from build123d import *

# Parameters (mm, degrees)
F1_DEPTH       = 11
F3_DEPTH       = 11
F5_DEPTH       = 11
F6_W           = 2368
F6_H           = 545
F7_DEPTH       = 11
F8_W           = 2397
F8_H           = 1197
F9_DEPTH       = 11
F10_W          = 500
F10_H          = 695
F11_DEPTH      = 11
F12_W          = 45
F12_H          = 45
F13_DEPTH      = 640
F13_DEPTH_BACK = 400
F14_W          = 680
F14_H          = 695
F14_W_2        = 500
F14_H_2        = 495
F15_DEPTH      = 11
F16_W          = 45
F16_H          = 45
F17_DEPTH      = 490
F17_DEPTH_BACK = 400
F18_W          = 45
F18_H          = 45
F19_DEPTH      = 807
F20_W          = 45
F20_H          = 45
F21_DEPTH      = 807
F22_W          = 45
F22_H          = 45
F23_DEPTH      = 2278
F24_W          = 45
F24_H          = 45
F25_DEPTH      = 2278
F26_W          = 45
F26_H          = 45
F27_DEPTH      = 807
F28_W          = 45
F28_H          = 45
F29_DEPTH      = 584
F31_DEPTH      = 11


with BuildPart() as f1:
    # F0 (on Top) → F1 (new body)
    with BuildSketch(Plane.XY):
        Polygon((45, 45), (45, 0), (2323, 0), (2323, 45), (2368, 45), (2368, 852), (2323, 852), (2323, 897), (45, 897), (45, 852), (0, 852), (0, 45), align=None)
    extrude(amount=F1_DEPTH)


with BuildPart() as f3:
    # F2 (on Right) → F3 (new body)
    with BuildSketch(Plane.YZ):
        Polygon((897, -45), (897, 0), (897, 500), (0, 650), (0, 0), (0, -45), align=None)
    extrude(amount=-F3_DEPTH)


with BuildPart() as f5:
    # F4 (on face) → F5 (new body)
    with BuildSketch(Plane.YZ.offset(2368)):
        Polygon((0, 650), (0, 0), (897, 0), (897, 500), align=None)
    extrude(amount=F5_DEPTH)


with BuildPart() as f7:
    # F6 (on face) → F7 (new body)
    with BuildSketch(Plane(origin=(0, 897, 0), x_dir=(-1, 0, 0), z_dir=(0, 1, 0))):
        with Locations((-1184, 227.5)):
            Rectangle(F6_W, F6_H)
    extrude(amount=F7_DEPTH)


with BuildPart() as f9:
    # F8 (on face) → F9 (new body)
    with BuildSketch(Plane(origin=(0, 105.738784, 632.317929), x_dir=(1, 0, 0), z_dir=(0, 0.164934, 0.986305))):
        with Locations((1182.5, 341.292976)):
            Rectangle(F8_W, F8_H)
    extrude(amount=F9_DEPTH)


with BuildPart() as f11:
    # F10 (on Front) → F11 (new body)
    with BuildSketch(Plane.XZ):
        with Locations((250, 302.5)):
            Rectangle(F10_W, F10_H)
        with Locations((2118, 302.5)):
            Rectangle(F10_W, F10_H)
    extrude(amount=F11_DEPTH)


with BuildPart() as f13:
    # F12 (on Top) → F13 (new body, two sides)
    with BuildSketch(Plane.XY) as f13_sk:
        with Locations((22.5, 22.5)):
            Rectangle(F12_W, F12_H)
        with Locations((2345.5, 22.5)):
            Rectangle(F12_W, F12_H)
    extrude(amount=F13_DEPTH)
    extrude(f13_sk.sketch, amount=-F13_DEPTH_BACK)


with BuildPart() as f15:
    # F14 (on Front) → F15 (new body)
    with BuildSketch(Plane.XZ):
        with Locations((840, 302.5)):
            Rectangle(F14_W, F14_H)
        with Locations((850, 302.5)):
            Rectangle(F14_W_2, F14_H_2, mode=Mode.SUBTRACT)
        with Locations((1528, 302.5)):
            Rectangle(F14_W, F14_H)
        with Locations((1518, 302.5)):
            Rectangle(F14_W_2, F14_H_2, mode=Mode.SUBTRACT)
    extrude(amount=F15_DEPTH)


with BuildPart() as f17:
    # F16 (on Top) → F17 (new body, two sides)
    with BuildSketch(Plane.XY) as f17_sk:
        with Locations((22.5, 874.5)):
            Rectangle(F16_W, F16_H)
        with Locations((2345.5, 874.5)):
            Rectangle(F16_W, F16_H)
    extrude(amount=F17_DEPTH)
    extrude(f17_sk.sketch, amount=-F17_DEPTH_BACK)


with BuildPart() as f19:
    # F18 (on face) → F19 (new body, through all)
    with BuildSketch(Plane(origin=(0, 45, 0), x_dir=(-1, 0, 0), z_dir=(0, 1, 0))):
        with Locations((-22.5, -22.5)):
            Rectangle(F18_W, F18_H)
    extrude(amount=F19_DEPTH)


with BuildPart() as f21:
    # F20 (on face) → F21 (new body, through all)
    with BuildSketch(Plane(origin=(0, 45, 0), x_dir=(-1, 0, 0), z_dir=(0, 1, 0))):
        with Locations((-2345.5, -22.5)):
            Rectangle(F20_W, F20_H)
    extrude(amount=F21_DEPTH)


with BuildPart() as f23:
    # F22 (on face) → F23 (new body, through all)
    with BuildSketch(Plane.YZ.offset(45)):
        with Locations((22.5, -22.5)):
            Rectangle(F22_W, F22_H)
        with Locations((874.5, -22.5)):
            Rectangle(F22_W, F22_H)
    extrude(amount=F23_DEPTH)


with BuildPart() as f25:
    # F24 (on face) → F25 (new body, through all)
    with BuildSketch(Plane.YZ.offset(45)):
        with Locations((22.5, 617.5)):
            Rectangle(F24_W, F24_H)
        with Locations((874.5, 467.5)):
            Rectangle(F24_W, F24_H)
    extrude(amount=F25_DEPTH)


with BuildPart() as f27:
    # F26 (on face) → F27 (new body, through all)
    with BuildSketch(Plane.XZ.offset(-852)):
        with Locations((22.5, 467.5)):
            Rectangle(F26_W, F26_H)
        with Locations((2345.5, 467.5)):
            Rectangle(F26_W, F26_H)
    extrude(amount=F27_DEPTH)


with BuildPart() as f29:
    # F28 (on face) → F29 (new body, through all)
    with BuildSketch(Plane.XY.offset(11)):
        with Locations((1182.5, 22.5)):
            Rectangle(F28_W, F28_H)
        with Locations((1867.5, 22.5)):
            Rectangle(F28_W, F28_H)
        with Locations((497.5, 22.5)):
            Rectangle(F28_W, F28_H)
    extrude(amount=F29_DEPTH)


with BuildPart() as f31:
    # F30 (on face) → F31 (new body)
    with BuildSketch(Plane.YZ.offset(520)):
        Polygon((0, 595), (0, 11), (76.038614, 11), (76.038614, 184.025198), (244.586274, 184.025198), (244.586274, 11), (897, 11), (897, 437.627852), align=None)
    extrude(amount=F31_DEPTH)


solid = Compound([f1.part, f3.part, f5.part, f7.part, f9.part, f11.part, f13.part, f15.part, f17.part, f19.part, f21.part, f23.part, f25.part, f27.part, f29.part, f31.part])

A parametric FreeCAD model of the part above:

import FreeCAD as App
import Part
import Sketcher

V = App.Vector


def add_polygon(sketch, points):
    """Adds a closed chain of lines whose ends are joined by coincident constraints."""
    first, n = sketch.GeometryCount, len(points)
    for a, b in zip(points, points[1:] + points[:1]):
        sketch.addGeometry(Part.LineSegment(App.Vector(*a, 0), App.Vector(*b, 0)), False)
    for i in range(n):
        sketch.addConstraint(Sketcher.Constraint("Coincident", first + i, 2, first + (i + 1) % n, 1))

doc = App.newDocument("Part")
body = doc.addObject("PartDesign::Body", "Body")

# Sketch on XY plane
sketch1 = body.newObject("Sketcher::SketchObject", "Sketch")
sketch1.AttachmentSupport = (doc.getObject("XY_Plane"), [""])
sketch1.MapMode = "FlatFace"
add_polygon(sketch1, [(45, 45), (45, 0), (2323, 0), (2323, 45), (2368, 45), (2368, 852), (2323, 852), (2323, 897), (45, 897), (45, 852), (0, 852), (0, 45)])  # lines 0-11
sketch1.addConstraint(Sketcher.Constraint("Vertical", 0))
sketch1.addConstraint(Sketcher.Constraint("Horizontal", 1))
sketch1.addConstraint(Sketcher.Constraint("Vertical", 2))
sketch1.addConstraint(Sketcher.Constraint("Horizontal", 3))
sketch1.addConstraint(Sketcher.Constraint("Vertical", 4))
sketch1.addConstraint(Sketcher.Constraint("Horizontal", 5))
sketch1.addConstraint(Sketcher.Constraint("Vertical", 6))
sketch1.addConstraint(Sketcher.Constraint("Horizontal", 7))
sketch1.addConstraint(Sketcher.Constraint("Vertical", 8))
sketch1.addConstraint(Sketcher.Constraint("Horizontal", 9))
sketch1.addConstraint(Sketcher.Constraint("Vertical", 10))
sketch1.addConstraint(Sketcher.Constraint("Horizontal", 11))
sketch1.addConstraint(Sketcher.Constraint("PointOnObject", 0, 2, -1))
sketch1.addConstraint(Sketcher.Constraint("PointOnObject", 9, 2, -2))
sketch1.addConstraint(Sketcher.Constraint("Horizontal", 5, 2, 8, 2))
sketch1.addConstraint(Sketcher.Constraint("Horizontal", 3, 2, 10, 2))
sketch1.addConstraint(Sketcher.Constraint("Vertical", 2, 2, 5, 2))
sketch1.addConstraint(Sketcher.Constraint("Vertical", 0, 2, 7, 2))
sketch1.addConstraint(Sketcher.Constraint("Equal", 5, 9))
sketch1.addConstraint(Sketcher.Constraint("Equal", 11, 0))
sketch1.addConstraint(Sketcher.Constraint("Equal", 2, 6))
sketch1.addConstraint(Sketcher.Constraint("DistanceX", 1, 1, 1, 2, 2278.0))
sketch1.addConstraint(Sketcher.Constraint("DistanceX", 3, 1, 3, 2, 45.0))
sketch1.addConstraint(Sketcher.Constraint("DistanceY", 4, 1, 4, 2, 807.0))
pad1 = body.newObject("PartDesign::Pad", "Pad")
pad1.Profile = sketch1
pad1.Length = 11
body2 = doc.addObject("PartDesign::Body", "Body001")

# Sketch on YZ plane
sketch2 = body2.newObject("Sketcher::SketchObject", "Sketch001")
sketch2.AttachmentSupport = (doc.getObject("YZ_Plane001"), [""])
sketch2.MapMode = "FlatFace"
add_polygon(sketch2, [(897, -45), (897, 500), (0, 650), (0, -45)])  # lines 0-3
sketch2.addConstraint(Sketcher.Constraint("Vertical", 0))
sketch2.addConstraint(Sketcher.Constraint("Vertical", 2))
sketch2.addConstraint(Sketcher.Constraint("Horizontal", 3))
sketch2.addConstraint(Sketcher.Constraint("PointOnObject", 1, 2, -2))
sketch2.addConstraint(Sketcher.Constraint("DistanceX", 3, 1, 3, 2, 897.0))
sketch2.addConstraint(Sketcher.Constraint("DistanceY", 0, 1, 0, 2, 545.0))
sketch2.addConstraint(Sketcher.Constraint("DistanceY", 2, 2, 2, 1, 695.0))
sketch2.addConstraint(Sketcher.Constraint("DistanceY", -1, 1, 0, 2, 500.0))
pad2 = body2.newObject("PartDesign::Pad", "Pad001")
pad2.Profile = sketch2
pad2.Length = 11
pad2.Reversed = True
body3 = doc.addObject("PartDesign::Body", "Body002")

# Sketch on YZ plane
sketch3 = body3.newObject("Sketcher::SketchObject", "Sketch002")
sketch3.AttachmentSupport = (doc.getObject("YZ_Plane002"), [""])
sketch3.MapMode = "FlatFace"
sketch3.AttachmentOffset = App.Placement(V(0, 0, 2368), App.Rotation())
add_polygon(sketch3, [(0, 650), (0, 0), (897, 0), (897, 500)])  # lines 0-3
sketch3.addConstraint(Sketcher.Constraint("Vertical", 0))
sketch3.addConstraint(Sketcher.Constraint("Horizontal", 1))
sketch3.addConstraint(Sketcher.Constraint("Vertical", 2))
sketch3.addConstraint(Sketcher.Constraint("Coincident", 0, 2, -1, 1))
sketch3.addConstraint(Sketcher.Constraint("DistanceX", 1, 1, 1, 2, 897.0))
sketch3.addConstraint(Sketcher.Constraint("DistanceY", 0, 2, 0, 1, 650.0))
sketch3.addConstraint(Sketcher.Constraint("DistanceY", 2, 1, 2, 2, 500.0))
pad3 = body3.newObject("PartDesign::Pad", "Pad002")
pad3.Profile = sketch3
pad3.Length = 11
body4 = doc.addObject("PartDesign::Body", "Body003")

# Sketch on XZ plane
sketch4 = body4.newObject("Sketcher::SketchObject", "Sketch003")
sketch4.AttachmentSupport = (doc.getObject("XZ_Plane003"), [""])
sketch4.MapMode = "FlatFace"
sketch4.AttachmentOffset = App.Placement(V(0, 0, -897), App.Rotation())
add_polygon(sketch4, [(2368, 500), (2368, -45), (0, -45), (0, 500)])  # lines 0-3
sketch4.addConstraint(Sketcher.Constraint("Vertical", 0))
sketch4.addConstraint(Sketcher.Constraint("Horizontal", 1))
sketch4.addConstraint(Sketcher.Constraint("Vertical", 2))
sketch4.addConstraint(Sketcher.Constraint("Horizontal", 3))
sketch4.addConstraint(Sketcher.Constraint("PointOnObject", 1, 2, -2))
sketch4.addConstraint(Sketcher.Constraint("DistanceX", 1, 2, 1, 1, 2368.0))
sketch4.addConstraint(Sketcher.Constraint("DistanceY", 0, 2, 0, 1, 545.0))
sketch4.addConstraint(Sketcher.Constraint("DistanceY", 0, 2, -1, 1, 45.0))
pad4 = body4.newObject("PartDesign::Pad", "Pad003")
pad4.Profile = sketch4
pad4.Length = 11
pad4.Reversed = True
body5 = doc.addObject("PartDesign::Body", "Body004")

# Sketch on an angled plane
sketch5 = body5.newObject("Sketcher::SketchObject", "Sketch004")
sketch5.Placement = App.Placement(V(0, 105.738784, 632.317929), App.Rotation(V(1, 0, 0), V(0, 0.986304617, -0.164933936), V(0, 0.164933936, 0.986304617), "ZXY"))
add_polygon(sketch5, [(-16, 940), (-16, -257), (2381, -257), (2381, 940)])  # lines 0-3
sketch5.addConstraint(Sketcher.Constraint("Vertical", 0))
sketch5.addConstraint(Sketcher.Constraint("Horizontal", 1))
sketch5.addConstraint(Sketcher.Constraint("Vertical", 2))
sketch5.addConstraint(Sketcher.Constraint("Horizontal", 3))
sketch5.addConstraint(Sketcher.Constraint("DistanceX", 1, 1, 1, 2, 2397.0))
sketch5.addConstraint(Sketcher.Constraint("DistanceY", 0, 2, 0, 1, 1197.000001))
sketch5.addConstraint(Sketcher.Constraint("DistanceX", 0, 2, -1, 1, 16.0))
sketch5.addConstraint(Sketcher.Constraint("DistanceY", 0, 2, -1, 1, 257.207024))
pad5 = body5.newObject("PartDesign::Pad", "Pad004")
pad5.Profile = sketch5
pad5.Length = 11
body6 = doc.addObject("PartDesign::Body", "Body005")
body6.AllowCompound = True

# Sketch on XZ plane
sketch6 = body6.newObject("Sketcher::SketchObject", "Sketch005")
sketch6.AttachmentSupport = (doc.getObject("XZ_Plane005"), [""])
sketch6.MapMode = "FlatFace"
add_polygon(sketch6, [(0, 650), (0, -45), (500, -45), (500, 650)])  # lines 0-3
add_polygon(sketch6, [(1868, 650), (1868, -45), (2368, -45), (2368, 650)])  # lines 4-7
sketch6.addConstraint(Sketcher.Constraint("Vertical", 0))
sketch6.addConstraint(Sketcher.Constraint("Horizontal", 1))
sketch6.addConstraint(Sketcher.Constraint("Vertical", 2))
sketch6.addConstraint(Sketcher.Constraint("Horizontal", 3))
sketch6.addConstraint(Sketcher.Constraint("Vertical", 4))
sketch6.addConstraint(Sketcher.Constraint("Horizontal", 5))
sketch6.addConstraint(Sketcher.Constraint("Vertical", 6))
sketch6.addConstraint(Sketcher.Constraint("Horizontal", 7))
sketch6.addConstraint(Sketcher.Constraint("PointOnObject", 0, 2, -2))
sketch6.addConstraint(Sketcher.Constraint("Horizontal", 1, 2, 4, 2))
sketch6.addConstraint(Sketcher.Constraint("Horizontal", 3, 2, 6, 2))
sketch6.addConstraint(Sketcher.Constraint("Equal", 3, 5))
sketch6.addConstraint(Sketcher.Constraint("DistanceX", 1, 1, 1, 2, 500.0))
sketch6.addConstraint(Sketcher.Constraint("DistanceY", 0, 2, 0, 1, 695.0))
sketch6.addConstraint(Sketcher.Constraint("DistanceY", 0, 2, -1, 1, 45.0))
sketch6.addConstraint(Sketcher.Constraint("DistanceX", -1, 1, 4, 2, 1868.0))
pad6 = body6.newObject("PartDesign::Pad", "Pad005")
pad6.Profile = sketch6
pad6.Length = 11
body7 = doc.addObject("PartDesign::Body", "Body006")
body7.AllowCompound = True

# Sketch on XY plane
sketch7 = body7.newObject("Sketcher::SketchObject", "Sketch006")
sketch7.AttachmentSupport = (doc.getObject("XY_Plane006"), [""])
sketch7.MapMode = "FlatFace"
add_polygon(sketch7, [(0, 45), (0, 0), (45, 0), (45, 45)])  # lines 0-3
add_polygon(sketch7, [(2323, 45), (2323, 0), (2368, 0), (2368, 45)])  # lines 4-7
sketch7.addConstraint(Sketcher.Constraint("Vertical", 0))
sketch7.addConstraint(Sketcher.Constraint("Horizontal", 1))
sketch7.addConstraint(Sketcher.Constraint("Vertical", 2))
sketch7.addConstraint(Sketcher.Constraint("Horizontal", 3))
sketch7.addConstraint(Sketcher.Constraint("Vertical", 4))
sketch7.addConstraint(Sketcher.Constraint("Horizontal", 5))
sketch7.addConstraint(Sketcher.Constraint("Vertical", 6))
sketch7.addConstraint(Sketcher.Constraint("Horizontal", 7))
sketch7.addConstraint(Sketcher.Constraint("Coincident", 0, 2, -1, 1))
sketch7.addConstraint(Sketcher.Constraint("PointOnObject", 4, 2, -1))
sketch7.addConstraint(Sketcher.Constraint("Horizontal", 3, 2, 6, 2))
sketch7.addConstraint(Sketcher.Constraint("Equal", 3, 5))
sketch7.addConstraint(Sketcher.Constraint("Equal", 7, 0))
sketch7.addConstraint(Sketcher.Constraint("DistanceX", 1, 1, 1, 2, 45.0))
sketch7.addConstraint(Sketcher.Constraint("DistanceX", -1, 1, 4, 2, 2323.0))
pad7 = body7.newObject("PartDesign::Pad", "Pad006")
pad7.Profile = sketch7
pad7.Type = "TwoLengths"
pad7.Length = 640
pad7.Length2 = 400
body8 = doc.addObject("PartDesign::Body", "Body007")
body8.AllowCompound = True

# Sketch on XZ plane
sketch8 = body8.newObject("Sketcher::SketchObject", "Sketch007")
sketch8.AttachmentSupport = (doc.getObject("XZ_Plane007"), [""])
sketch8.MapMode = "FlatFace"
add_polygon(sketch8, [(500, 650), (500, -45), (1180, -45), (1180, 650)])  # lines 0-3
add_polygon(sketch8, [(1100, 55), (600, 55), (600, 550), (1100, 550)])  # lines 4-7
add_polygon(sketch8, [(1188, 650), (1188, -45), (1868, -45), (1868, 650)])  # lines 8-11
add_polygon(sketch8, [(1768, 55), (1268, 55), (1268, 550), (1768, 550)])  # lines 12-15
sketch8.addConstraint(Sketcher.Constraint("Vertical", 0))
sketch8.addConstraint(Sketcher.Constraint("Horizontal", 1))
sketch8.addConstraint(Sketcher.Constraint("Vertical", 2))
sketch8.addConstraint(Sketcher.Constraint("Horizontal", 3))
sketch8.addConstraint(Sketcher.Constraint("Horizontal", 4))
sketch8.addConstraint(Sketcher.Constraint("Vertical", 5))
sketch8.addConstraint(Sketcher.Constraint("Horizontal", 6))
sketch8.addConstraint(Sketcher.Constraint("Vertical", 7))
sketch8.addConstraint(Sketcher.Constraint("Vertical", 8))
sketch8.addConstraint(Sketcher.Constraint("Horizontal", 9))
sketch8.addConstraint(Sketcher.Constraint("Vertical", 10))
sketch8.addConstraint(Sketcher.Constraint("Horizontal", 11))
sketch8.addConstraint(Sketcher.Constraint("Horizontal", 12))
sketch8.addConstraint(Sketcher.Constraint("Vertical", 13))
sketch8.addConstraint(Sketcher.Constraint("Horizontal", 14))
sketch8.addConstraint(Sketcher.Constraint("Vertical", 15))
sketch8.addConstraint(Sketcher.Constraint("Horizontal", 1, 2, 8, 2))
sketch8.addConstraint(Sketcher.Constraint("Horizontal", 3, 2, 10, 2))
sketch8.addConstraint(Sketcher.Constraint("Horizontal", 7, 2, 12, 2))
sketch8.addConstraint(Sketcher.Constraint("Horizontal", 6, 2, 13, 2))
sketch8.addConstraint(Sketcher.Constraint("Equal", 3, 9))
sketch8.addConstraint(Sketcher.Constraint("Equal", 6, 12))
sketch8.addConstraint(Sketcher.Constraint("DistanceX", 1, 1, 1, 2, 680.0))
sketch8.addConstraint(Sketcher.Constraint("DistanceX", 4, 2, 4, 1, 500.0))
sketch8.addConstraint(Sketcher.Constraint("DistanceY", 0, 2, 0, 1, 695.0))
sketch8.addConstraint(Sketcher.Constraint("DistanceY", 5, 1, 5, 2, 495.0))
sketch8.addConstraint(Sketcher.Constraint("DistanceX", -1, 1, 0, 2, 500.0))
sketch8.addConstraint(Sketcher.Constraint("DistanceY", 0, 2, -1, 1, 45.0))
sketch8.addConstraint(Sketcher.Constraint("DistanceX", -1, 1, 4, 2, 600.0))
sketch8.addConstraint(Sketcher.Constraint("DistanceY", -1, 1, 4, 2, 55.0))
sketch8.addConstraint(Sketcher.Constraint("DistanceX", -1, 1, 8, 2, 1188.0))
sketch8.addConstraint(Sketcher.Constraint("DistanceX", -1, 1, 12, 2, 1268.0))
pad8 = body8.newObject("PartDesign::Pad", "Pad007")
pad8.Profile = sketch8
pad8.Length = 11
body9 = doc.addObject("PartDesign::Body", "Body008")
body9.AllowCompound = True

# Sketch on XY plane
sketch9 = body9.newObject("Sketcher::SketchObject", "Sketch008")
sketch9.AttachmentSupport = (doc.getObject("XY_Plane008"), [""])
sketch9.MapMode = "FlatFace"
add_polygon(sketch9, [(0, 897), (0, 852), (45, 852), (45, 897)])  # lines 0-3
add_polygon(sketch9, [(2323, 897), (2323, 852), (2368, 852), (2368, 897)])  # lines 4-7
sketch9.addConstraint(Sketcher.Constraint("Vertical", 0))
sketch9.addConstraint(Sketcher.Constraint("Horizontal", 1))
sketch9.addConstraint(Sketcher.Constraint("Vertical", 2))
sketch9.addConstraint(Sketcher.Constraint("Horizontal", 3))
sketch9.addConstraint(Sketcher.Constraint("Vertical", 4))
sketch9.addConstraint(Sketcher.Constraint("Horizontal", 5))
sketch9.addConstraint(Sketcher.Constraint("Vertical", 6))
sketch9.addConstraint(Sketcher.Constraint("Horizontal", 7))
sketch9.addConstraint(Sketcher.Constraint("PointOnObject", 0, 2, -2))
sketch9.addConstraint(Sketcher.Constraint("Horizontal", 1, 2, 4, 2))
sketch9.addConstraint(Sketcher.Constraint("Horizontal", 3, 2, 6, 2))
sketch9.addConstraint(Sketcher.Constraint("Equal", 3, 5))
sketch9.addConstraint(Sketcher.Constraint("Equal", 7, 0))
sketch9.addConstraint(Sketcher.Constraint("DistanceX", 1, 1, 1, 2, 45.0))
sketch9.addConstraint(Sketcher.Constraint("DistanceY", -1, 1, 0, 2, 852.0))
sketch9.addConstraint(Sketcher.Constraint("DistanceX", -1, 1, 4, 2, 2323.0))
pad9 = body9.newObject("PartDesign::Pad", "Pad008")
pad9.Profile = sketch9
pad9.Type = "TwoLengths"
pad9.Length = 490
pad9.Length2 = 400
body10 = doc.addObject("PartDesign::Body", "Body009")

# Sketch on XZ plane
sketch10 = body10.newObject("Sketcher::SketchObject", "Sketch009")
sketch10.AttachmentSupport = (doc.getObject("XZ_Plane009"), [""])
sketch10.MapMode = "FlatFace"
sketch10.AttachmentOffset = App.Placement(V(0, 0, -45), App.Rotation())
add_polygon(sketch10, [(45, 0), (45, -45), (0, -45), (0, 0)])  # lines 0-3
sketch10.addConstraint(Sketcher.Constraint("Vertical", 0))
sketch10.addConstraint(Sketcher.Constraint("Horizontal", 1))
sketch10.addConstraint(Sketcher.Constraint("Vertical", 2))
sketch10.addConstraint(Sketcher.Constraint("Horizontal", 3))
sketch10.addConstraint(Sketcher.Constraint("Coincident", 2, 2, -1, 1))
sketch10.addConstraint(Sketcher.Constraint("Equal", 3, 0))
sketch10.addConstraint(Sketcher.Constraint("DistanceX", 1, 2, 1, 1, 45.0))
pad10 = body10.newObject("PartDesign::Pad", "Pad009")
pad10.Profile = sketch10
pad10.Length = 807
pad10.Reversed = True
body11 = doc.addObject("PartDesign::Body", "Body010")

# Sketch on XZ plane
sketch11 = body11.newObject("Sketcher::SketchObject", "Sketch010")
sketch11.AttachmentSupport = (doc.getObject("XZ_Plane010"), [""])
sketch11.MapMode = "FlatFace"
sketch11.AttachmentOffset = App.Placement(V(0, 0, -45), App.Rotation())
add_polygon(sketch11, [(2368, 0), (2368, -45), (2323, -45), (2323, 0)])  # lines 0-3
sketch11.addConstraint(Sketcher.Constraint("Vertical", 0))
sketch11.addConstraint(Sketcher.Constraint("Horizontal", 1))
sketch11.addConstraint(Sketcher.Constraint("Vertical", 2))
sketch11.addConstraint(Sketcher.Constraint("Horizontal", 3))
sketch11.addConstraint(Sketcher.Constraint("PointOnObject", 2, 2, -1))
sketch11.addConstraint(Sketcher.Constraint("Equal", 3, 0))
sketch11.addConstraint(Sketcher.Constraint("DistanceX", 1, 2, 1, 1, 45.0))
sketch11.addConstraint(Sketcher.Constraint("DistanceX", -1, 1, 0, 2, 2368.0))
pad11 = body11.newObject("PartDesign::Pad", "Pad010")
pad11.Profile = sketch11
pad11.Length = 807
pad11.Reversed = True
body12 = doc.addObject("PartDesign::Body", "Body011")
body12.AllowCompound = True

# Sketch on YZ plane
sketch12 = body12.newObject("Sketcher::SketchObject", "Sketch011")
sketch12.AttachmentSupport = (doc.getObject("YZ_Plane011"), [""])
sketch12.MapMode = "FlatFace"
sketch12.AttachmentOffset = App.Placement(V(0, 0, 45), App.Rotation())
add_polygon(sketch12, [(0, 0), (0, -45), (45, -45), (45, 0)])  # lines 0-3
add_polygon(sketch12, [(852, 0), (852, -45), (897, -45), (897, 0)])  # lines 4-7
sketch12.addConstraint(Sketcher.Constraint("Vertical", 0))
sketch12.addConstraint(Sketcher.Constraint("Horizontal", 1))
sketch12.addConstraint(Sketcher.Constraint("Vertical", 2))
sketch12.addConstraint(Sketcher.Constraint("Horizontal", 3))
sketch12.addConstraint(Sketcher.Constraint("Vertical", 4))
sketch12.addConstraint(Sketcher.Constraint("Horizontal", 5))
sketch12.addConstraint(Sketcher.Constraint("Vertical", 6))
sketch12.addConstraint(Sketcher.Constraint("Horizontal", 7))
sketch12.addConstraint(Sketcher.Constraint("Coincident", 3, 2, -1, 1))
sketch12.addConstraint(Sketcher.Constraint("PointOnObject", 6, 2, -1))
sketch12.addConstraint(Sketcher.Constraint("Horizontal", 1, 2, 4, 2))
sketch12.addConstraint(Sketcher.Constraint("Equal", 3, 5))
sketch12.addConstraint(Sketcher.Constraint("Equal", 7, 0))
sketch12.addConstraint(Sketcher.Constraint("DistanceX", 1, 1, 1, 2, 45.0))
sketch12.addConstraint(Sketcher.Constraint("DistanceX", -1, 1, 4, 2, 852.0))
pad12 = body12.newObject("PartDesign::Pad", "Pad011")
pad12.Profile = sketch12
pad12.Length = 2278
body13 = doc.addObject("PartDesign::Body", "Body012")
body13.AllowCompound = True

# Sketch on YZ plane
sketch13 = body13.newObject("Sketcher::SketchObject", "Sketch012")
sketch13.AttachmentSupport = (doc.getObject("YZ_Plane012"), [""])
sketch13.MapMode = "FlatFace"
sketch13.AttachmentOffset = App.Placement(V(0, 0, 45), App.Rotation())
add_polygon(sketch13, [(0, 640), (0, 595), (45, 595), (45, 640)])  # lines 0-3
add_polygon(sketch13, [(852, 490), (852, 445), (897, 445), (897, 490)])  # lines 4-7
sketch13.addConstraint(Sketcher.Constraint("Vertical", 0))
sketch13.addConstraint(Sketcher.Constraint("Horizontal", 1))
sketch13.addConstraint(Sketcher.Constraint("Vertical", 2))
sketch13.addConstraint(Sketcher.Constraint("Horizontal", 3))
sketch13.addConstraint(Sketcher.Constraint("Vertical", 4))
sketch13.addConstraint(Sketcher.Constraint("Horizontal", 5))
sketch13.addConstraint(Sketcher.Constraint("Vertical", 6))
sketch13.addConstraint(Sketcher.Constraint("Horizontal", 7))
sketch13.addConstraint(Sketcher.Constraint("PointOnObject", 0, 2, -2))
sketch13.addConstraint(Sketcher.Constraint("Equal", 3, 5))
sketch13.addConstraint(Sketcher.Constraint("Equal", 7, 0))
sketch13.addConstraint(Sketcher.Constraint("Equal", 2, 4))
sketch13.addConstraint(Sketcher.Constraint("DistanceX", 1, 1, 1, 2, 45.0))
sketch13.addConstraint(Sketcher.Constraint("DistanceY", -1, 1, 0, 2, 595.0))
sketch13.addConstraint(Sketcher.Constraint("DistanceX", -1, 1, 4, 2, 852.0))
sketch13.addConstraint(Sketcher.Constraint("DistanceY", -1, 1, 4, 2, 445.0))
pad13 = body13.newObject("PartDesign::Pad", "Pad012")
pad13.Profile = sketch13
pad13.Length = 2278
body14 = doc.addObject("PartDesign::Body", "Body013")
body14.AllowCompound = True

# Sketch on XZ plane
sketch14 = body14.newObject("Sketcher::SketchObject", "Sketch013")
sketch14.AttachmentSupport = (doc.getObject("XZ_Plane013"), [""])
sketch14.MapMode = "FlatFace"
sketch14.AttachmentOffset = App.Placement(V(0, 0, -852), App.Rotation())
add_polygon(sketch14, [(0, 490), (0, 445), (45, 445), (45, 490)])  # lines 0-3
add_polygon(sketch14, [(2323, 490), (2323, 445), (2368, 445), (2368, 490)])  # lines 4-7
sketch14.addConstraint(Sketcher.Constraint("Vertical", 0))
sketch14.addConstraint(Sketcher.Constraint("Horizontal", 1))
sketch14.addConstraint(Sketcher.Constraint("Vertical", 2))
sketch14.addConstraint(Sketcher.Constraint("Horizontal", 3))
sketch14.addConstraint(Sketcher.Constraint("Vertical", 4))
sketch14.addConstraint(Sketcher.Constraint("Horizontal", 5))
sketch14.addConstraint(Sketcher.Constraint("Vertical", 6))
sketch14.addConstraint(Sketcher.Constraint("Horizontal", 7))
sketch14.addConstraint(Sketcher.Constraint("PointOnObject", 0, 2, -2))
sketch14.addConstraint(Sketcher.Constraint("Horizontal", 1, 2, 4, 2))
sketch14.addConstraint(Sketcher.Constraint("Horizontal", 3, 2, 6, 2))
sketch14.addConstraint(Sketcher.Constraint("Equal", 3, 5))
sketch14.addConstraint(Sketcher.Constraint("Equal", 7, 0))
sketch14.addConstraint(Sketcher.Constraint("DistanceX", 1, 1, 1, 2, 45.0))
sketch14.addConstraint(Sketcher.Constraint("DistanceY", -1, 1, 0, 2, 445.0))
sketch14.addConstraint(Sketcher.Constraint("DistanceX", -1, 1, 4, 2, 2323.0))
pad14 = body14.newObject("PartDesign::Pad", "Pad013")
pad14.Profile = sketch14
pad14.Length = 807
body15 = doc.addObject("PartDesign::Body", "Body014")
body15.AllowCompound = True

# Sketch on XY plane
sketch15 = body15.newObject("Sketcher::SketchObject", "Sketch014")
sketch15.AttachmentSupport = (doc.getObject("XY_Plane014"), [""])
sketch15.MapMode = "FlatFace"
sketch15.AttachmentOffset = App.Placement(V(0, 0, 11), App.Rotation())
add_polygon(sketch15, [(1160, 45), (1160, 0), (1205, 0), (1205, 45)])  # lines 0-3
add_polygon(sketch15, [(1845, 45), (1845, 0), (1890, 0), (1890, 45)])  # lines 4-7
add_polygon(sketch15, [(475, 45), (475, 0), (520, 0), (520, 45)])  # lines 8-11
sketch15.addConstraint(Sketcher.Constraint("Vertical", 0))
sketch15.addConstraint(Sketcher.Constraint("Horizontal", 1))
sketch15.addConstraint(Sketcher.Constraint("Vertical", 2))
sketch15.addConstraint(Sketcher.Constraint("Horizontal", 3))
sketch15.addConstraint(Sketcher.Constraint("Vertical", 4))
sketch15.addConstraint(Sketcher.Constraint("Horizontal", 5))
sketch15.addConstraint(Sketcher.Constraint("Vertical", 6))
sketch15.addConstraint(Sketcher.Constraint("Horizontal", 7))
sketch15.addConstraint(Sketcher.Constraint("Vertical", 8))
sketch15.addConstraint(Sketcher.Constraint("Horizontal", 9))
sketch15.addConstraint(Sketcher.Constraint("Vertical", 10))
sketch15.addConstraint(Sketcher.Constraint("Horizontal", 11))
sketch15.addConstraint(Sketcher.Constraint("PointOnObject", 0, 2, -1))
sketch15.addConstraint(Sketcher.Constraint("PointOnObject", 4, 2, -1))
sketch15.addConstraint(Sketcher.Constraint("PointOnObject", 8, 2, -1))
sketch15.addConstraint(Sketcher.Constraint("Horizontal", 3, 2, 6, 2))
sketch15.addConstraint(Sketcher.Constraint("Horizontal", 7, 2, 10, 2))
sketch15.addConstraint(Sketcher.Constraint("Equal", 3, 5))
sketch15.addConstraint(Sketcher.Constraint("Equal", 7, 9))
sketch15.addConstraint(Sketcher.Constraint("Equal", 11, 0))
sketch15.addConstraint(Sketcher.Constraint("DistanceX", 1, 1, 1, 2, 45.0))
sketch15.addConstraint(Sketcher.Constraint("DistanceX", -1, 1, 0, 2, 1160.0))
sketch15.addConstraint(Sketcher.Constraint("DistanceX", -1, 1, 4, 2, 1845.0))
sketch15.addConstraint(Sketcher.Constraint("DistanceX", -1, 1, 8, 2, 475.0))
pad15 = body15.newObject("PartDesign::Pad", "Pad014")
pad15.Profile = sketch15
pad15.Length = 584
body16 = doc.addObject("PartDesign::Body", "Body015")

# Sketch on YZ plane
sketch16 = body16.newObject("Sketcher::SketchObject", "Sketch015")
sketch16.AttachmentSupport = (doc.getObject("YZ_Plane015"), [""])
sketch16.MapMode = "FlatFace"
sketch16.AttachmentOffset = App.Placement(V(0, 0, 520), App.Rotation())
add_polygon(sketch16, [(0, 595), (0, 11), (76, 11), (76, 184), (245, 184), (245, 11), (897, 11), (897, 438)])  # lines 0-7
sketch16.addConstraint(Sketcher.Constraint("Vertical", 0))
sketch16.addConstraint(Sketcher.Constraint("Horizontal", 1))
sketch16.addConstraint(Sketcher.Constraint("Vertical", 2))
sketch16.addConstraint(Sketcher.Constraint("Horizontal", 3))
sketch16.addConstraint(Sketcher.Constraint("Vertical", 4))
sketch16.addConstraint(Sketcher.Constraint("Horizontal", 5))
sketch16.addConstraint(Sketcher.Constraint("Vertical", 6))
sketch16.addConstraint(Sketcher.Constraint("PointOnObject", 0, 2, -2))
sketch16.addConstraint(Sketcher.Constraint("Horizontal", 1, 2, 4, 2))
sketch16.addConstraint(Sketcher.Constraint("DistanceY", 0, 2, 0, 1, 584.0))
sketch16.addConstraint(Sketcher.Constraint("DistanceY", -1, 1, 0, 2, 11.0))
sketch16.addConstraint(Sketcher.Constraint("DistanceX", -1, 1, 5, 2, 897.0))
sketch16.addConstraint(Sketcher.Constraint("DistanceX", 3, 1, 3, 2, 168.54766))
sketch16.addConstraint(Sketcher.Constraint("DistanceY", 6, 1, 6, 2, 426.627852))
sketch16.addConstraint(Sketcher.Constraint("DistanceY", 2, 2, 7, 2, 410.974802))
sketch16.addConstraint(Sketcher.Constraint("DistanceX", 1, 1, 1, 2, 76.038614))
pad16 = body16.newObject("PartDesign::Pad", "Pad015")
pad16.Profile = sketch16
pad16.Length = 11

doc.recompute()
